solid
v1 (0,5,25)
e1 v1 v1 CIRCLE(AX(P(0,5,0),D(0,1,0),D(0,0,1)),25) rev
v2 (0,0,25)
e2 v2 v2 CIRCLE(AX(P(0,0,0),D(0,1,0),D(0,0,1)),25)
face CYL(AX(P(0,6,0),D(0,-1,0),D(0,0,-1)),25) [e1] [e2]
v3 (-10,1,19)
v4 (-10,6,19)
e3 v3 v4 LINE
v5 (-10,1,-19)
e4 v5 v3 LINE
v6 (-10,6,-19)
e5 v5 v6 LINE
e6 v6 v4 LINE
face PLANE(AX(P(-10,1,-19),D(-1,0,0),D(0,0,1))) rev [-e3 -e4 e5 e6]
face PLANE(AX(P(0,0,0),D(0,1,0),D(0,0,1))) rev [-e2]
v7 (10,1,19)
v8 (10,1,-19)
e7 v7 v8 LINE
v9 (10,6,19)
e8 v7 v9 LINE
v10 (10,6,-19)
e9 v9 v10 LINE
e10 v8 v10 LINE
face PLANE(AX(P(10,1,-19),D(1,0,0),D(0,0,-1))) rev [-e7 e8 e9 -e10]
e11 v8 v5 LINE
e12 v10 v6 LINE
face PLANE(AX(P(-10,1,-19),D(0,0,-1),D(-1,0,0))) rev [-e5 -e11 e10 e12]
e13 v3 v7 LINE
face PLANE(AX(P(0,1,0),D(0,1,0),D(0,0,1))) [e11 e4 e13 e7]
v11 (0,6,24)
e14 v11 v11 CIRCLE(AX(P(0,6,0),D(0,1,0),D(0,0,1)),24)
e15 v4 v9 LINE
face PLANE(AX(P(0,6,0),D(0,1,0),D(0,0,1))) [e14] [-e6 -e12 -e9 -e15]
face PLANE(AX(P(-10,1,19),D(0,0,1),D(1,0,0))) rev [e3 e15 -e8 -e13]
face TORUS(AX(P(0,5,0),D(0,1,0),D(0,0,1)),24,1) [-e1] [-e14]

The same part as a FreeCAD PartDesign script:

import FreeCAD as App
import Part
import Sketcher

V = App.Vector


def edges_at(feature, points):
    """Names of the edges that pass closest to the given points."""
    edges = feature.Shape.Edges
    near = lambda p: min(range(len(edges)), key=lambda i: edges[i].distToShape(Part.Vertex(*p))[0])
    return sorted({f"Edge{near(p) + 1}" for p in points})

doc = App.newDocument("Part")
body = doc.addObject("PartDesign::Body", "Body")

# Sketch on XZ plane
sketch1 = body.newObject("Sketcher::SketchObject", "Sketch")
sketch1.AttachmentSupport = (doc.getObject("XZ_Plane"), [""])
sketch1.MapMode = "FlatFace"
sketch1.addGeometry(Part.Circle(V(0, 0, 0), V(0, 0, 1), 25), False)
sketch1.addConstraint([
    Sketcher.Constraint("Coincident", 0, 3, -1, 1),
    Sketcher.Constraint("Diameter", 0, 50.0),
])
pad1 = body.newObject("PartDesign::Pad", "Pad")
pad1.Profile = sketch1
pad1.Length = 6
pad1.Reversed = True

# Sketch on XZ plane
sketch2 = body.newObject("Sketcher::SketchObject", "Sketch001")
sketch2.AttachmentSupport = (doc.getObject("XZ_Plane"), [""])
sketch2.MapMode = "FlatFace"
sketch2.AttachmentOffset = App.Placement(V(0, 0, -6), App.Rotation())
sketch2.addGeometry([
    Part.LineSegment(V(-10, -19, 0), V(-10, 19, 0)),
    Part.LineSegment(V(-10, 19, 0), V(10, 19, 0)),
    Part.LineSegment(V(10, 19, 0), V(10, -19, 0)),
    Part.LineSegment(V(10, -19, 0), V(-10, -19, 0)),
], False)
sketch2.addConstraint([
    Sketcher.Constraint("Coincident", 0, 2, 1, 1),
    Sketcher.Constraint("Coincident", 1, 2, 2, 1),
    Sketcher.Constraint("Coincident", 2, 2, 3, 1),
    Sketcher.Constraint("Coincident", 3, 2, 0, 1),
    Sketcher.Constraint("Vertical", 0),
    Sketcher.Constraint("Horizontal", 1),
    Sketcher.Constraint("Vertical", 2),
    Sketcher.Constraint("Horizontal", 3),
    Sketcher.Constraint("Symmetric", 0, 2, 2, 2, -1, 1),
    Sketcher.Constraint("DistanceX", 1, 1, 1, 2, 20.0),
    Sketcher.Constraint("DistanceY", 0, 1, 0, 2, 38.0),
])
pocket1 = body.newObject("PartDesign::Pocket", "Pocket")
pocket1.Profile = sketch2
pocket1.Length = 5
pocket1.Reversed = True
doc.recompute()

fillet = body.newObject("PartDesign::Fillet", "Fillet")
fillet.Base = (pocket1, edges_at(pocket1, [(0, 6, -25)]))
fillet.Radius = 1

doc.recompute()
